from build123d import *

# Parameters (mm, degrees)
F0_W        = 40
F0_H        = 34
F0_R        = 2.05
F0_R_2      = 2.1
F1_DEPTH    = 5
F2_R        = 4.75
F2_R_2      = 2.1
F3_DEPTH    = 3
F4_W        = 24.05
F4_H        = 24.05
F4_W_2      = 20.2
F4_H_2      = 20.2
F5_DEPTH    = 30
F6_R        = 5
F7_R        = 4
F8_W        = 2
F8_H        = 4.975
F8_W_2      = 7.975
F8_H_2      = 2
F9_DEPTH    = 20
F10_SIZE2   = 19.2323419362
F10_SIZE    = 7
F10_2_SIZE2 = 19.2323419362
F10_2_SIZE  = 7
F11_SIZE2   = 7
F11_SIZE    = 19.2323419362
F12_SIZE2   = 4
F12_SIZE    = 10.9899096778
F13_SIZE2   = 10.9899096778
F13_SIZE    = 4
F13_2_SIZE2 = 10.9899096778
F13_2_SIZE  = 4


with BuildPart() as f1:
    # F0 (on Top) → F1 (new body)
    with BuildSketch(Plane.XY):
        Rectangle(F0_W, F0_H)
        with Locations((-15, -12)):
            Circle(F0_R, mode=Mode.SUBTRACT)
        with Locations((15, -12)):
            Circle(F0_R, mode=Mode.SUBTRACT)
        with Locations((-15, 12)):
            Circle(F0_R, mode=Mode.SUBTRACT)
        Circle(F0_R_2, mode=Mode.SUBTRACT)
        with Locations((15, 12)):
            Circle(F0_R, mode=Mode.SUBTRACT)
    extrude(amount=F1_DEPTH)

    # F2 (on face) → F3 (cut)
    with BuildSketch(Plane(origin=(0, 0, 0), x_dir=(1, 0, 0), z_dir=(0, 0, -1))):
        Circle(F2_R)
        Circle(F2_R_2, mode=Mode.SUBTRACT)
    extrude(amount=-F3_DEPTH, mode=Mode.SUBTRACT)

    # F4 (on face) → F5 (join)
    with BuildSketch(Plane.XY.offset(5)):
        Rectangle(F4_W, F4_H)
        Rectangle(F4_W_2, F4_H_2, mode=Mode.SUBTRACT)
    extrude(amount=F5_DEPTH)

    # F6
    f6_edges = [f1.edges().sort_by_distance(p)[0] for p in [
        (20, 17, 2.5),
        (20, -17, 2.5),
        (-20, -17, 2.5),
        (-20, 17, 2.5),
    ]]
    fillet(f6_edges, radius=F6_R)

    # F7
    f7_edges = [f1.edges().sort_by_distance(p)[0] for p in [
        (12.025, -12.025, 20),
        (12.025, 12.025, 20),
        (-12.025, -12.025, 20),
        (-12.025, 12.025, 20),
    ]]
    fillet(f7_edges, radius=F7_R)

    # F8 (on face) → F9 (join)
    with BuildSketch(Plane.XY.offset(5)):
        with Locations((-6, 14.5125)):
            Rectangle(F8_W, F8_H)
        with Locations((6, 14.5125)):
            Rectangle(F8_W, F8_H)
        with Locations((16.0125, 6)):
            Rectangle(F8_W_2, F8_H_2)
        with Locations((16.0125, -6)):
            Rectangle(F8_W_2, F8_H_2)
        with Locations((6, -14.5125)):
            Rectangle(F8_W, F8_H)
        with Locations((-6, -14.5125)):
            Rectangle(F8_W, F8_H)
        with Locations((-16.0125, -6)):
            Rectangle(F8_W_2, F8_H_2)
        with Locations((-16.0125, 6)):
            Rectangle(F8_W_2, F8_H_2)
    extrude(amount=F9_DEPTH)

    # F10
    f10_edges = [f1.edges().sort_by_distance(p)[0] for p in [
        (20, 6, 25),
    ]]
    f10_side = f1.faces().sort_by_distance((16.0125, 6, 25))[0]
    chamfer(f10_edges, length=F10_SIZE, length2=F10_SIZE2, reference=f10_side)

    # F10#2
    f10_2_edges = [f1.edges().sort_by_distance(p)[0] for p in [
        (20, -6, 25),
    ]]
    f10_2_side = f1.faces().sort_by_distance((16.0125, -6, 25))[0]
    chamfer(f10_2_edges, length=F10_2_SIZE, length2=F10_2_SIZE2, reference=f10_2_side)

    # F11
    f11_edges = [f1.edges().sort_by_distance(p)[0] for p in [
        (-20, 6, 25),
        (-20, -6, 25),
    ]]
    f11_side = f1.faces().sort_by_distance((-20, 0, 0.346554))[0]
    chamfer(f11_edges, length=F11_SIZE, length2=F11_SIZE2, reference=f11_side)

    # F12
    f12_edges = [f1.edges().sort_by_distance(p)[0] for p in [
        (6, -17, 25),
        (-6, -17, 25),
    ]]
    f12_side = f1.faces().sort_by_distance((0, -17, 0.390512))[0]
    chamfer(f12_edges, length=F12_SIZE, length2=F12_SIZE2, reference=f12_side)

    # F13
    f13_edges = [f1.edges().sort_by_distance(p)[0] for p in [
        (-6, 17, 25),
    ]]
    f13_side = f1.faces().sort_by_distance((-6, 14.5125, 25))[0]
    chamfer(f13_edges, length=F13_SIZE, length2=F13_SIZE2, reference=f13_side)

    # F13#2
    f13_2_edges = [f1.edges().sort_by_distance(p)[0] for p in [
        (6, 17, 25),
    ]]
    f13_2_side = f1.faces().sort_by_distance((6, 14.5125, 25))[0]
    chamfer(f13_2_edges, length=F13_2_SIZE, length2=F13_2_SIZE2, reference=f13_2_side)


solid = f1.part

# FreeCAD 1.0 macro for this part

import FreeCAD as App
import Part
import Sketcher

V = App.Vector


def edges_at(feature, points):
    """Names of the edges that pass closest to the given points."""
    edges = feature.Shape.Edges
    near = lambda p: min(range(len(edges)), key=lambda i: edges[i].distToShape(Part.Vertex(*p))[0])
    return sorted({f"Edge{near(p) + 1}" for p in points})

doc = App.newDocument("Part")
params = doc.addObject("Spreadsheet::Sheet", "Params")
for row, (alias, value) in enumerate([
    ("sketch1_diameter", "4.1 mm"),
    ("sketch1_diameter2", "4.2 mm"),
    ("sketch1_width", "40 mm"),
    ("sketch1_height", "34 mm"),
    ("pad1_length", "5 mm"),
    ("sketch2_diameter", "9.5 mm"),
    ("sketch2_diameter2", "4.2 mm"),
    ("pocket1_length", "3 mm"),
    ("sketch3_width", "20.2 mm"),
    ("sketch3_width2", "24.05 mm"),
    ("pad2_length", "30 mm"),
    ("fillet_radius", "5 mm"),
    ("fillet2_radius", "4 mm"),
    ("sketch4_width", "2 mm"),
    ("pad3_length", "20 mm"),
    ("chamfer_size", "7 mm"),
    ("chamfer_size2", "19.232342 mm"),
    ("chamfer2_size", "7 mm"),
    ("chamfer2_size2", "19.232342 mm"),
    ("chamfer3_size", "19.232342 mm"),
    ("chamfer3_size2", "7 mm"),
    ("chamfer4_size", "10.98991 mm"),
    ("chamfer4_size2", "4 mm"),
    ("chamfer5_size", "4 mm"),
    ("chamfer5_size2", "10.98991 mm"),
    ("chamfer6_size", "4 mm"),
    ("chamfer6_size2", "10.98991 mm"),
], start=1):
    params.set(f"A{row}", alias)
    params.set(f"B{row}", "=" + value)
    params.setAlias(f"B{row}", alias)

body = doc.addObject("PartDesign::Body", "Body")

# Sketch on XY plane
sketch1 = body.newObject("Sketcher::SketchObject", "Sketch")
sketch1.AttachmentSupport = (doc.getObject("XY_Plane"), [""])
sketch1.MapMode = "FlatFace"
sketch1.addGeometry(Part.LineSegment(V(-20, 17, 0), V(-20, -17, 0)), False)
sketch1.addGeometry(Part.LineSegment(V(-20, -17, 0), V(20, -17, 0)), False)
sketch1.addGeometry(Part.LineSegment(V(20, -17, 0), V(20, 17, 0)), False)
sketch1.addGeometry(Part.LineSegment(V(20, 17, 0), V(-20, 17, 0)), False)
sketch1.addGeometry(Part.Circle(V(-15, -12, 0), V(0, 0, 1), 2), False)
sketch1.addGeometry(Part.Circle(V(15, -12, 0), V(0, 0, 1), 2), False)
sketch1.addGeometry(Part.Circle(V(-15, 12, 0), V(0, 0, 1), 2), False)
sketch1.addGeometry(Part.Circle(V(0, 0, 0), V(0, 0, 1), 2.1), False)
sketch1.addGeometry(Part.Circle(V(15, 12, 0), V(0, 0, 1), 2), False)
sketch1.addConstraint(Sketcher.Constraint("Coincident", 0, 2, 1, 1))
sketch1.addConstraint(Sketcher.Constraint("Coincident", 1, 2, 2, 1))
sketch1.addConstraint(Sketcher.Constraint("Coincident", 2, 2, 3, 1))
sketch1.addConstraint(Sketcher.Constraint("Coincident", 3, 2, 0, 1))
sketch1.addConstraint(Sketcher.Constraint("Vertical", 0))
sketch1.addConstraint(Sketcher.Constraint("Horizontal", 1))
sketch1.addConstraint(Sketcher.Constraint("Vertical", 2))
sketch1.addConstraint(Sketcher.Constraint("Horizontal", 3))
sketch1.addConstraint(Sketcher.Constraint("Coincident", 7, 3, -1, 1))
sketch1.addConstraint(Sketcher.Constraint("Equal", 4, 5))
sketch1.addConstraint(Sketcher.Constraint("Equal", 5, 6))
sketch1.addConstraint(Sketcher.Constraint("Equal", 6, 8))
sketch1.addConstraint(Sketcher.Constraint("Symmetric", 5, 3, 6, 3, -1, 1))
sketch1.addConstraint(Sketcher.Constraint("Symmetric", 4, 3, 8, 3, -1, 1))
sketch1.addConstraint(Sketcher.Constraint("Symmetric", 0, 2, 2, 2, -1, 1))
sketch1.addConstraint(Sketcher.Constraint("Symmetric", 4, 3, 5, 3, -2))
sketch1.addConstraint(Sketcher.Constraint("Diameter", 4, 4.1))
sketch1.addConstraint(Sketcher.Constraint("Diameter", 7, 4.2))
sketch1.addConstraint(Sketcher.Constraint("DistanceX", 1, 1, 1, 2, 40.0))
sketch1.addConstraint(Sketcher.Constraint("DistanceY", 0, 2, 0, 1, 34.0))
sketch1.addConstraint(Sketcher.Constraint("DistanceX", 4, 3, -1, 1, 15.0))
sketch1.addConstraint(Sketcher.Constraint("DistanceY", 4, 3, -1, 1, 12.0))
sketch1.setExpression("Constraints[16]", "Params.sketch1_diameter")
sketch1.setExpression("Constraints[17]", "Params.sketch1_diameter2")
sketch1.setExpression("Constraints[18]", "Params.sketch1_width")
sketch1.setExpression("Constraints[19]", "Params.sketch1_height")
pad1 = body.newObject("PartDesign::Pad", "Pad")
pad1.Profile = sketch1
pad1.setExpression("Length", "Params.pad1_length")

# Sketch on XY plane
sketch2 = body.newObject("Sketcher::SketchObject", "Sketch001")
sketch2.AttachmentSupport = (doc.getObject("XY_Plane"), [""])
sketch2.MapMode = "FlatFace"
sketch2.addGeometry(Part.Circle(V(0, 0, 0), V(0, 0, 1), 4.8), False)
sketch2.addGeometry(Part.Circle(V(0, 0, 0), V(0, 0, 1), 2.1), False)
sketch2.addConstraint(Sketcher.Constraint("Coincident", 0, 3, -1, 1))
sketch2.addConstraint(Sketcher.Constraint("Coincident", 1, 3, -1, 1))
sketch2.addConstraint(Sketcher.Constraint("Diameter", 0, 9.5))
sketch2.addConstraint(Sketcher.Constraint("Diameter", 1, 4.2))
sketch2.setExpression("Constraints[2]", "Params.sketch2_diameter")
sketch2.setExpression("Constraints[3]", "Params.sketch2_diameter2")
pocket1 = body.newObject("PartDesign::Pocket", "Pocket")
pocket1.Profile = sketch2
pocket1.setExpression("Length", "Params.pocket1_length")
pocket1.Reversed = True

# Sketch on XY plane
sketch3 = body.newObject("Sketcher::SketchObject", "Sketch002")
sketch3.AttachmentSupport = (doc.getObject("XY_Plane"), [""])
sketch3.MapMode = "FlatFace"
sketch3.AttachmentOffset = App.Placement(V(0, 0, 5), App.Rotation())
sketch3.addGeometry(Part.LineSegment(V(-12, 12, 0), V(-12, -12, 0)), False)
sketch3.addGeometry(Part.LineSegment(V(-12, -12, 0), V(12, -12, 0)), False)
sketch3.addGeometry(Part.LineSegment(V(12, -12, 0), V(12, 12, 0)), False)
sketch3.addGeometry(Part.LineSegment(V(12, 12, 0), V(-12, 12, 0)), False)
sketch3.addGeometry(Part.LineSegment(V(10, -10, 0), V(-10, -10, 0)), False)
sketch3.addGeometry(Part.LineSegment(V(-10, -10, 0), V(-10, 10, 0)), False)
sketch3.addGeometry(Part.LineSegment(V(-10, 10, 0), V(10, 10, 0)), False)
sketch3.addGeometry(Part.LineSegment(V(10, 10, 0), V(10, -10, 0)), False)
sketch3.addConstraint(Sketcher.Constraint("Coincident", 0, 2, 1, 1))
sketch3.addConstraint(Sketcher.Constraint("Coincident", 1, 2, 2, 1))
sketch3.addConstraint(Sketcher.Constraint("Coincident", 2, 2, 3, 1))
sketch3.addConstraint(Sketcher.Constraint("Coincident", 3, 2, 0, 1))
sketch3.addConstraint(Sketcher.Constraint("Coincident", 4, 2, 5, 1))
sketch3.addConstraint(Sketcher.Constraint("Coincident", 5, 2, 6, 1))
sketch3.addConstraint(Sketcher.Constraint("Coincident", 6, 2, 7, 1))
sketch3.addConstraint(Sketcher.Constraint("Coincident", 7, 2, 4, 1))
sketch3.addConstraint(Sketcher.Constraint("Vertical", 0))
sketch3.addConstraint(Sketcher.Constraint("Horizontal", 1))
sketch3.addConstraint(Sketcher.Constraint("Vertical", 2))
sketch3.addConstraint(Sketcher.Constraint("Horizontal", 3))
sketch3.addConstraint(Sketcher.Constraint("Horizontal", 4))
sketch3.addConstraint(Sketcher.Constraint("Vertical", 5))
sketch3.addConstraint(Sketcher.Constraint("Horizontal", 6))
sketch3.addConstraint(Sketcher.Constraint("Vertical", 7))
sketch3.addConstraint(Sketcher.Constraint("Symmetric", 0, 2, 2, 2, -1, 1))
sketch3.addConstraint(Sketcher.Constraint("Symmetric", 4, 2, 6, 2, -1, 1))
sketch3.addConstraint(Sketcher.Constraint("Equal", 3, 0))
sketch3.addConstraint(Sketcher.Constraint("Equal", 6, 5))
sketch3.addConstraint(Sketcher.Constraint("DistanceX", 4, 2, 4, 1, 20.2))
sketch3.addConstraint(Sketcher.Constraint("DistanceX", 1, 1, 1, 2, 24.05))
sketch3.setExpression("Constraints[20]", "Params.sketch3_width")
sketch3.setExpression("Constraints[21]", "Params.sketch3_width2")
pad2 = body.newObject("PartDesign::Pad", "Pad001")
pad2.Profile = sketch3
pad2.setExpression("Length", "Params.pad2_length")
doc.recompute()

fillet = body.newObject("PartDesign::Fillet", "Fillet")
fillet.Base = (pad2, edges_at(pad2, [
    (20, 17, 2.5),
    (20, -17, 2.5),
    (-20, -17, 2.5),
    (-20, 17, 2.5),
]))
fillet.setExpression("Radius", "Params.fillet_radius")
doc.recompute()

fillet2 = body.newObject("PartDesign::Fillet", "Fillet001")
fillet2.Base = (fillet, edges_at(fillet, [
    (12.025, -12.025, 20),
    (12.025, 12.025, 20),
    (-12.025, -12.025, 20),
    (-12.025, 12.025, 20),
]))
fillet2.setExpression("Radius", "Params.fillet2_radius")

# Sketch on XY plane
sketch4 = body.newObject("Sketcher::SketchObject", "Sketch003")
sketch4.AttachmentSupport = (doc.getObject("XY_Plane"), [""])
sketch4.MapMode = "FlatFace"
sketch4.AttachmentOffset = App.Placement(V(0, 0, 5), App.Rotation())
sketch4.addGeometry(Part.LineSegment(V(-7, 17, 0), V(-7, 12, 0)), False)
sketch4.addGeometry(Part.LineSegment(V(-7, 12, 0), V(-5, 12, 0)), False)
sketch4.addGeometry(Part.LineSegment(V(-5, 12, 0), V(-5, 17, 0)), False)
sketch4.addGeometry(Part.LineSegment(V(-5, 17, 0), V(-7, 17, 0)), False)
sketch4.addGeometry(Part.LineSegment(V(5, 17, 0), V(5, 12, 0)), False)
sketch4.addGeometry(Part.LineSegment(V(5, 12, 0), V(7, 12, 0)), False)
sketch4.addGeometry(Part.LineSegment(V(7, 12, 0), V(7, 17, 0)), False)
sketch4.addGeometry(Part.LineSegment(V(7, 17, 0), V(5, 17, 0)), False)
sketch4.addGeometry(Part.LineSegment(V(12, 7, 0), V(12, 5, 0)), False)
sketch4.addGeometry(Part.LineSegment(V(12, 5, 0), V(20, 5, 0)), False)
sketch4.addGeometry(Part.LineSegment(V(20, 5, 0), V(20, 7, 0)), False)
sketch4.addGeometry(Part.LineSegment(V(20, 7, 0), V(12, 7, 0)), False)
sketch4.addGeometry(Part.LineSegment(V(12, -5, 0), V(12, -7, 0)), False)
sketch4.addGeometry(Part.LineSegment(V(12, -7, 0), V(20, -7, 0)), False)
sketch4.addGeometry(Part.LineSegment(V(20, -7, 0), V(20, -5, 0)), False)
sketch4.addGeometry(Part.LineSegment(V(20, -5, 0), V(12, -5, 0)), False)
sketch4.addGeometry(Part.LineSegment(V(5, -12, 0), V(5, -17, 0)), False)
sketch4.addGeometry(Part.LineSegment(V(5, -17, 0), V(7, -17, 0)), False)
sketch4.addGeometry(Part.LineSegment(V(7, -17, 0), V(7, -12, 0)), False)
sketch4.addGeometry(Part.LineSegment(V(7, -12, 0), V(5, -12, 0)), False)
sketch4.addGeometry(Part.LineSegment(V(-7, -12, 0), V(-7, -17, 0)), False)
sketch4.addGeometry(Part.LineSegment(V(-7, -17, 0), V(-5, -17, 0)), False)
sketch4.addGeometry(Part.LineSegment(V(-5, -17, 0), V(-5, -12, 0)), False)
sketch4.addGeometry(Part.LineSegment(V(-5, -12, 0), V(-7, -12, 0)), False)
sketch4.addGeometry(Part.LineSegment(V(-20, -5, 0), V(-20, -7, 0)), False)
sketch4.addGeometry(Part.LineSegment(V(-20, -7, 0), V(-12, -7, 0)), False)
sketch4.addGeometry(Part.LineSegment(V(-12, -7, 0), V(-12, -5, 0)), False)
sketch4.addGeometry(Part.LineSegment(V(-12, -5, 0), V(-20, -5, 0)), False)
sketch4.addGeometry(Part.LineSegment(V(-20, 7, 0), V(-20, 5, 0)), False)
sketch4.addGeometry(Part.LineSegment(V(-20, 5, 0), V(-12, 5, 0)), False)
sketch4.addGeometry(Part.LineSegment(V(-12, 5, 0), V(-12, 7, 0)), False)
sketch4.addGeometry(Part.LineSegment(V(-12, 7, 0), V(-20, 7, 0)), False)
sketch4.addConstraint(Sketcher.Constraint("Coincident", 0, 2, 1, 1))
sketch4.addConstraint(Sketcher.Constraint("Coincident", 1, 2, 2, 1))
sketch4.addConstraint(Sketcher.Constraint("Coincident", 2, 2, 3, 1))
sketch4.addConstraint(Sketcher.Constraint("Coincident", 3, 2, 0, 1))
sketch4.addConstraint(Sketcher.Constraint("Coincident", 4, 2, 5, 1))
sketch4.addConstraint(Sketcher.Constraint("Coincident", 5, 2, 6, 1))
sketch4.addConstraint(Sketcher.Constraint("Coincident", 6, 2, 7, 1))
sketch4.addConstraint(Sketcher.Constraint("Coincident", 7, 2, 4, 1))
sketch4.addConstraint(Sketcher.Constraint("Coincident", 8, 2, 9, 1))
sketch4.addConstraint(Sketcher.Constraint("Coincident", 9, 2, 10, 1))
sketch4.addConstraint(Sketcher.Constraint("Coincident", 10, 2, 11, 1))
sketch4.addConstraint(Sketcher.Constraint("Coincident", 11, 2, 8, 1))
sketch4.addConstraint(Sketcher.Constraint("Coincident", 12, 2, 13, 1))
sketch4.addConstraint(Sketcher.Constraint("Coincident", 13, 2, 14, 1))
sketch4.addConstraint(Sketcher.Constraint("Coincident", 14, 2, 15, 1))
sketch4.addConstraint(Sketcher.Constraint("Coincident", 15, 2, 12, 1))
sketch4.addConstraint(Sketcher.Constraint("Coincident", 16, 2, 17, 1))
sketch4.addConstraint(Sketcher.Constraint("Coincident", 17, 2, 18, 1))
sketch4.addConstraint(Sketcher.Constraint("Coincident", 18, 2, 19, 1))
sketch4.addConstraint(Sketcher.Constraint("Coincident", 19, 2, 16, 1))
sketch4.addConstraint(Sketcher.Constraint("Coincident", 20, 2, 21, 1))
sketch4.addConstraint(Sketcher.Constraint("Coincident", 21, 2, 22, 1))
sketch4.addConstraint(Sketcher.Constraint("Coincident", 22, 2, 23, 1))
sketch4.addConstraint(Sketcher.Constraint("Coincident", 23, 2, 20, 1))
sketch4.addConstraint(Sketcher.Constraint("Coincident", 24, 2, 25, 1))
sketch4.addConstraint(Sketcher.Constraint("Coincident", 25, 2, 26, 1))
sketch4.addConstraint(Sketcher.Constraint("Coincident", 26, 2, 27, 1))
sketch4.addConstraint(Sketcher.Constraint("Coincident", 27, 2, 24, 1))
sketch4.addConstraint(Sketcher.Constraint("Coincident", 28, 2, 29, 1))
sketch4.addConstraint(Sketcher.Constraint("Coincident", 29, 2, 30, 1))
sketch4.addConstraint(Sketcher.Constraint("Coincident", 30, 2, 31, 1))
sketch4.addConstraint(Sketcher.Constraint("Coincident", 31, 2, 28, 1))
sketch4.addConstraint(Sketcher.Constraint("Vertical", 0))
sketch4.addConstraint(Sketcher.Constraint("Horizontal", 1))
sketch4.addConstraint(Sketcher.Constraint("Vertical", 2))
sketch4.addConstraint(Sketcher.Constraint("Horizontal", 3))
sketch4.addConstraint(Sketcher.Constraint("Vertical", 4))
sketch4.addConstraint(Sketcher.Constraint("Horizontal", 5))
sketch4.addConstraint(Sketcher.Constraint("Vertical", 6))
sketch4.addConstraint(Sketcher.Constraint("Horizontal", 7))
sketch4.addConstraint(Sketcher.Constraint("Vertical", 8))
sketch4.addConstraint(Sketcher.Constraint("Horizontal", 9))
sketch4.addConstraint(Sketcher.Constraint("Vertical", 10))
sketch4.addConstraint(Sketcher.Constraint("Horizontal", 11))
sketch4.addConstraint(Sketcher.Constraint("Vertical", 12))
sketch4.addConstraint(Sketcher.Constraint("Horizontal", 13))
sketch4.addConstraint(Sketcher.Constraint("Vertical", 14))
sketch4.addConstraint(Sketcher.Constraint("Horizontal", 15))
sketch4.addConstraint(Sketcher.Constraint("Vertical", 16))
sketch4.addConstraint(Sketcher.Constraint("Horizontal", 17))
sketch4.addConstraint(Sketcher.Constraint("Vertical", 18))
sketch4.addConstraint(Sketcher.Constraint("Horizontal", 19))
sketch4.addConstraint(Sketcher.Constraint("Vertical", 20))
sketch4.addConstraint(Sketcher.Constraint("Horizontal", 21))
sketch4.addConstraint(Sketcher.Constraint("Vertical", 22))
sketch4.addConstraint(Sketcher.Constraint("Horizontal", 23))
sketch4.addConstraint(Sketcher.Constraint("Vertical", 24))
sketch4.addConstraint(Sketcher.Constraint("Horizontal", 25))
sketch4.addConstraint(Sketcher.Constraint("Vertical", 26))
sketch4.addConstraint(Sketcher.Constraint("Horizontal", 27))
sketch4.addConstraint(Sketcher.Constraint("Vertical", 28))
sketch4.addConstraint(Sketcher.Constraint("Horizontal", 29))
sketch4.addConstraint(Sketcher.Constraint("Vertical", 30))
sketch4.addConstraint(Sketcher.Constraint("Horizontal", 31))
sketch4.addConstraint(Sketcher.Constraint("Symmetric", 2, 2, 16, 2, -1, 1))
sketch4.addConstraint(Sketcher.Constraint("Symmetric", 0, 2, 18, 2, -1, 1))
sketch4.addConstraint(Sketcher.Constraint("Symmetric", 6, 2, 20, 2, -1, 1))
sketch4.addConstraint(Sketcher.Constraint("Symmetric", 4, 2, 22, 2, -1, 1))
sketch4.addConstraint(Sketcher.Constraint("Symmetric", 10, 2, 24, 2, -1, 1))
sketch4.addConstraint(Sketcher.Constraint("Symmetric", 8, 2, 26, 2, -1, 1))
sketch4.addConstraint(Sketcher.Constraint("Symmetric", 14, 2, 28, 2, -1, 1))
sketch4.addConstraint(Sketcher.Constraint("Symmetric", 12, 2, 30, 2, -1, 1))
sketch4.addConstraint(Sketcher.Constraint("Symmetric", 1, 2, 4, 2, -2))
sketch4.addConstraint(Sketcher.Constraint("Symmetric", 3, 2, 6, 2, -2))
sketch4.addConstraint(Sketcher.Constraint("Symmetric", 13, 2, 24, 2, -2))
sketch4.addConstraint(Sketcher.Constraint("Symmetric", 15, 2, 26, 2, -2))
sketch4.addConstraint(Sketcher.Constraint("Equal", 23, 8))
sketch4.addConstraint(Sketcher.Constraint("DistanceX", 1, 1, 1, 2, 2.0))
sketch4.addConstraint(Sketcher.Constraint("DistanceX", 0, 2, -1, 1, 7.0))
sketch4.addConstraint(Sketcher.Constraint("DistanceY", -1, 1, 2, 2, 17.0))
sketch4.addConstraint(Sketcher.Constraint("DistanceY", -1, 1, 8, 2, 5.0))
sketch4.addConstraint(Sketcher.Constraint("DistanceX", -1, 1, 9, 2, 20.0))
sketch4.addConstraint(Sketcher.Constraint("DistanceX", 9, 1, 9, 2, 7.975))
sketch4.addConstraint(Sketcher.Constraint("DistanceY", 0, 2, 0, 1, 4.975))
sketch4.setExpression("Constraints[77]", "Params.sketch4_width")
pad3 = body.newObject("PartDesign::Pad", "Pad002")
pad3.Profile = sketch4
pad3.setExpression("Length", "Params.pad3_length")
doc.recompute()

chamfer = body.newObject("PartDesign::Chamfer", "Chamfer")
chamfer.Base = (pad3, edges_at(pad3, [(20, 6, 25)]))
chamfer.ChamferType = "Two distances"
chamfer.setExpression("Size", "Params.chamfer_size")
chamfer.setExpression("Size2", "Params.chamfer_size2")
doc.recompute()

chamfer2 = body.newObject("PartDesign::Chamfer", "Chamfer001")
chamfer2.Base = (chamfer, edges_at(chamfer, [(20, -6, 25)]))
chamfer2.ChamferType = "Two distances"
chamfer2.setExpression("Size", "Params.chamfer2_size")
chamfer2.setExpression("Size2", "Params.chamfer2_size2")
chamfer2.FlipDirection = True
doc.recompute()

chamfer3 = body.newObject("PartDesign::Chamfer", "Chamfer002")
chamfer3.Base = (chamfer2, edges_at(chamfer2, [(-20, 6, 25), (-20, -6, 25)]))
chamfer3.ChamferType = "Two distances"
chamfer3.setExpression("Size", "Params.chamfer3_size")
chamfer3.setExpression("Size2", "Params.chamfer3_size2")
doc.recompute()

chamfer4 = body.newObject("PartDesign::Chamfer", "Chamfer003")
chamfer4.Base = (chamfer3, edges_at(chamfer3, [(6, -17, 25), (-6, -17, 25)]))
chamfer4.ChamferType = "Two distances"
chamfer4.setExpression("Size", "Params.chamfer4_size")
chamfer4.setExpression("Size2", "Params.chamfer4_size2")
doc.recompute()

chamfer5 = body.newObject("PartDesign::Chamfer", "Chamfer004")
chamfer5.Base = (chamfer4, edges_at(chamfer4, [(-6, 17, 25)]))
chamfer5.ChamferType = "Two distances"
chamfer5.setExpression("Size", "Params.chamfer5_size")
chamfer5.setExpression("Size2", "Params.chamfer5_size2")
chamfer5.FlipDirection = True
doc.recompute()

chamfer6 = body.newObject("PartDesign::Chamfer", "Chamfer005")
chamfer6.Base = (chamfer5, edges_at(chamfer5, [(6, 17, 25)]))
chamfer6.ChamferType = "Two distances"
chamfer6.setExpression("Size", "Params.chamfer6_size")
chamfer6.setExpression("Size2", "Params.chamfer6_size2")
chamfer6.FlipDirection = True

doc.recompute()
